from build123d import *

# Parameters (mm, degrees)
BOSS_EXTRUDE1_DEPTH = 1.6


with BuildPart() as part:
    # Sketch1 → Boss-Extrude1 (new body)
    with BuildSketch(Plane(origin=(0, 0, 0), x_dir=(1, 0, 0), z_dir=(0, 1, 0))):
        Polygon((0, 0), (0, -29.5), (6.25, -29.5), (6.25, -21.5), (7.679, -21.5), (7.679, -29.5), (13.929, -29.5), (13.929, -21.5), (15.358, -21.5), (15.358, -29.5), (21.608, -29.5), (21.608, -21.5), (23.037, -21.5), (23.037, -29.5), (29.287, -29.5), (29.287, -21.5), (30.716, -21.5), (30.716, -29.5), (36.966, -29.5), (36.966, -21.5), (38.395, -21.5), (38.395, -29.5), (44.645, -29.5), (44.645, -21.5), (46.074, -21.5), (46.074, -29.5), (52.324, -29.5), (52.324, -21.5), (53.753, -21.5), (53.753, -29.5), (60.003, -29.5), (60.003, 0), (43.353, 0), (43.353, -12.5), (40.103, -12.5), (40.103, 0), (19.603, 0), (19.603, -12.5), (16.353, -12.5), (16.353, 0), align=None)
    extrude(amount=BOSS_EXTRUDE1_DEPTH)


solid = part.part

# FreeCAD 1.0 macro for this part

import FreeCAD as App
import Part
import Sketcher
from FreeCAD import Vector


def add_polygon(sketch, points):
    """Adds a closed chain of lines whose ends are joined by coincident constraints."""
    first, n = sketch.GeometryCount, len(points)
    for a, b in zip(points, points[1:] + points[:1]):
        sketch.addGeometry(Part.LineSegment(App.Vector(*a, 0), App.Vector(*b, 0)), False)
    for i in range(n):
        sketch.addConstraint(Sketcher.Constraint("Coincident", first + i, 2, first + (i + 1) % n, 1))

doc = App.newDocument("Part")
body = doc.addObject("PartDesign::Body", "Body")

sketch1 = body.newObject("Sketcher::SketchObject", "Sketch")
sketch1.AttachmentSupport = (doc.getObject("XZ_Plane"), [""])
sketch1.MapMode = "FlatFace"
add_polygon(sketch1, [(0, 0), (0, 29.5), (6.2, 29.5), (6.2, 21.5), (7.7, 21.5), (7.7, 29.5), (13.9, 29.5), (13.9, 21.5), (15.4, 21.5), (15.4, 29.5), (21.6, 29.5), (21.6, 21.5), (23, 21.5), (23, 29.5), (29.3, 29.5), (29.3, 21.5), (30.7, 21.5), (30.7, 29.5), (37, 29.5), (37, 21.5), (38.4, 21.5), (38.4, 29.5), (44.6, 29.5), (44.6, 21.5), (46.1, 21.5), (46.1, 29.5), (52.3, 29.5), (52.3, 21.5), (53.8, 21.5), (53.8, 29.5), (60, 29.5), (60, 0), (43.4, 0), (43.4, 12.5), (40.1, 12.5), (40.1, 0), (19.6, 0), (19.6, 12.5), (16.4, 12.5), (16.4, 0)])
sketch1.addConstraint([
    Sketcher.Constraint("Vertical", 0),
    Sketcher.Constraint("Horizontal", 1),
    Sketcher.Constraint("Vertical", 2),
    Sketcher.Constraint("Horizontal", 3),
    Sketcher.Constraint("Vertical", 4),
    Sketcher.Constraint("Horizontal", 5),
    Sketcher.Constraint("Vertical", 6),
    Sketcher.Constraint("Horizontal", 7),
    Sketcher.Constraint("Vertical", 8),
    Sketcher.Constraint("Horizontal", 9),
    Sketcher.Constraint("Vertical", 10),
    Sketcher.Constraint("Horizontal", 11),
    Sketcher.Constraint("Vertical", 12),
    Sketcher.Constraint("Horizontal", 13),
    Sketcher.Constraint("Vertical", 14),
    Sketcher.Constraint("Horizontal", 15),
    Sketcher.Constraint("Vertical", 16),
    Sketcher.Constraint("Horizontal", 17),
    Sketcher.Constraint("Vertical", 18),
    Sketcher.Constraint("Horizontal", 19),
    Sketcher.Constraint("Vertical", 20),
    Sketcher.Constraint("Horizontal", 21),
    Sketcher.Constraint("Vertical", 22),
    Sketcher.Constraint("Horizontal", 23),
    Sketcher.Constraint("Vertical", 24),
    Sketcher.Constraint("Horizontal", 25),
    Sketcher.Constraint("Vertical", 26),
    Sketcher.Constraint("Horizontal", 27),
    Sketcher.Constraint("Vertical", 28),
    Sketcher.Constraint("Horizontal", 29),
    Sketcher.Constraint("Vertical", 30),
    Sketcher.Constraint("Horizontal", 31),
    Sketcher.Constraint("Vertical", 32),
    Sketcher.Constraint("Horizontal", 33),
    Sketcher.Constraint("Vertical", 34),
    Sketcher.Constraint("Horizontal", 35),
    Sketcher.Constraint("Vertical", 36),
    Sketcher.Constraint("Horizontal", 37),
    Sketcher.Constraint("Vertical", 38),
    Sketcher.Constraint("Horizontal", 39),
    Sketcher.Constraint("Coincident", 39, 2, -1, 1),
    Sketcher.Constraint("PointOnObject", 30, 2, -1),
    Sketcher.Constraint("PointOnObject", 34, 2, -1),
    Sketcher.Constraint("Horizontal", 1, 2, 4, 2),
    Sketcher.Constraint("Horizontal", 3, 2, 6, 2),
    Sketcher.Constraint("Horizontal", 5, 2, 8, 2),
    Sketcher.Constraint("Horizontal", 7, 2, 10, 2),
    Sketcher.Constraint("Horizontal", 9, 2, 12, 2),
    Sketcher.Constraint("Horizontal", 11, 2, 14, 2),
    Sketcher.Constraint("Horizontal", 13, 2, 16, 2),
    Sketcher.Constraint("Horizontal", 15, 2, 18, 2),
    Sketcher.Constraint("Horizontal", 17, 2, 20, 2),
    Sketcher.Constraint("Horizontal", 19, 2, 22, 2),
    Sketcher.Constraint("Horizontal", 21, 2, 24, 2),
    Sketcher.Constraint("Horizontal", 23, 2, 26, 2),
    Sketcher.Constraint("Horizontal", 25, 2, 28, 2),
    Sketcher.Constraint("Horizontal", 33, 2, 36, 2),
    Sketcher.Constraint("Equal", 1, 5),
    Sketcher.Constraint("Equal", 3, 7),
    Sketcher.Constraint("Equal", 5, 9),
    Sketcher.Constraint("Equal", 7, 11),
    Sketcher.Constraint("Equal", 9, 13),
    Sketcher.Constraint("Equal", 11, 15),
    Sketcher.Constraint("Equal", 13, 17),
    Sketcher.Constraint("Equal", 15, 19),
    Sketcher.Constraint("Equal", 17, 21),
    Sketcher.Constraint("Equal", 19, 23),
    Sketcher.Constraint("Equal", 21, 25),
    Sketcher.Constraint("Equal", 23, 27),
    Sketcher.Constraint("Equal", 25, 29),
    Sketcher.Constraint("Equal", 33, 37),
    Sketcher.Constraint("DistanceY", 2, 2, 2, 1, 8.0),
    Sketcher.Constraint("DistanceX", 35, 2, 35, 1, 20.5),
    Sketcher.Constraint("DistanceY", 0, 1, 0, 2, 29.5),
    Sketcher.Constraint("DistanceY", 32, 1, 32, 2, 12.5),
    Sketcher.Constraint("DistanceX", 1, 1, 1, 2, 6.25),
    Sketcher.Constraint("DistanceX", 31, 2, 31, 1, 16.65),
    Sketcher.Constraint("DistanceX", 33, 2, 33, 1, 3.25),
    Sketcher.Constraint("DistanceX", 3, 1, 3, 2, 1.429),
])
pad1 = body.newObject("PartDesign::Pad", "Pad")
pad1.Profile = sketch1
pad1.Length = 1.6
pad1.Reversed = True

doc.recompute()
